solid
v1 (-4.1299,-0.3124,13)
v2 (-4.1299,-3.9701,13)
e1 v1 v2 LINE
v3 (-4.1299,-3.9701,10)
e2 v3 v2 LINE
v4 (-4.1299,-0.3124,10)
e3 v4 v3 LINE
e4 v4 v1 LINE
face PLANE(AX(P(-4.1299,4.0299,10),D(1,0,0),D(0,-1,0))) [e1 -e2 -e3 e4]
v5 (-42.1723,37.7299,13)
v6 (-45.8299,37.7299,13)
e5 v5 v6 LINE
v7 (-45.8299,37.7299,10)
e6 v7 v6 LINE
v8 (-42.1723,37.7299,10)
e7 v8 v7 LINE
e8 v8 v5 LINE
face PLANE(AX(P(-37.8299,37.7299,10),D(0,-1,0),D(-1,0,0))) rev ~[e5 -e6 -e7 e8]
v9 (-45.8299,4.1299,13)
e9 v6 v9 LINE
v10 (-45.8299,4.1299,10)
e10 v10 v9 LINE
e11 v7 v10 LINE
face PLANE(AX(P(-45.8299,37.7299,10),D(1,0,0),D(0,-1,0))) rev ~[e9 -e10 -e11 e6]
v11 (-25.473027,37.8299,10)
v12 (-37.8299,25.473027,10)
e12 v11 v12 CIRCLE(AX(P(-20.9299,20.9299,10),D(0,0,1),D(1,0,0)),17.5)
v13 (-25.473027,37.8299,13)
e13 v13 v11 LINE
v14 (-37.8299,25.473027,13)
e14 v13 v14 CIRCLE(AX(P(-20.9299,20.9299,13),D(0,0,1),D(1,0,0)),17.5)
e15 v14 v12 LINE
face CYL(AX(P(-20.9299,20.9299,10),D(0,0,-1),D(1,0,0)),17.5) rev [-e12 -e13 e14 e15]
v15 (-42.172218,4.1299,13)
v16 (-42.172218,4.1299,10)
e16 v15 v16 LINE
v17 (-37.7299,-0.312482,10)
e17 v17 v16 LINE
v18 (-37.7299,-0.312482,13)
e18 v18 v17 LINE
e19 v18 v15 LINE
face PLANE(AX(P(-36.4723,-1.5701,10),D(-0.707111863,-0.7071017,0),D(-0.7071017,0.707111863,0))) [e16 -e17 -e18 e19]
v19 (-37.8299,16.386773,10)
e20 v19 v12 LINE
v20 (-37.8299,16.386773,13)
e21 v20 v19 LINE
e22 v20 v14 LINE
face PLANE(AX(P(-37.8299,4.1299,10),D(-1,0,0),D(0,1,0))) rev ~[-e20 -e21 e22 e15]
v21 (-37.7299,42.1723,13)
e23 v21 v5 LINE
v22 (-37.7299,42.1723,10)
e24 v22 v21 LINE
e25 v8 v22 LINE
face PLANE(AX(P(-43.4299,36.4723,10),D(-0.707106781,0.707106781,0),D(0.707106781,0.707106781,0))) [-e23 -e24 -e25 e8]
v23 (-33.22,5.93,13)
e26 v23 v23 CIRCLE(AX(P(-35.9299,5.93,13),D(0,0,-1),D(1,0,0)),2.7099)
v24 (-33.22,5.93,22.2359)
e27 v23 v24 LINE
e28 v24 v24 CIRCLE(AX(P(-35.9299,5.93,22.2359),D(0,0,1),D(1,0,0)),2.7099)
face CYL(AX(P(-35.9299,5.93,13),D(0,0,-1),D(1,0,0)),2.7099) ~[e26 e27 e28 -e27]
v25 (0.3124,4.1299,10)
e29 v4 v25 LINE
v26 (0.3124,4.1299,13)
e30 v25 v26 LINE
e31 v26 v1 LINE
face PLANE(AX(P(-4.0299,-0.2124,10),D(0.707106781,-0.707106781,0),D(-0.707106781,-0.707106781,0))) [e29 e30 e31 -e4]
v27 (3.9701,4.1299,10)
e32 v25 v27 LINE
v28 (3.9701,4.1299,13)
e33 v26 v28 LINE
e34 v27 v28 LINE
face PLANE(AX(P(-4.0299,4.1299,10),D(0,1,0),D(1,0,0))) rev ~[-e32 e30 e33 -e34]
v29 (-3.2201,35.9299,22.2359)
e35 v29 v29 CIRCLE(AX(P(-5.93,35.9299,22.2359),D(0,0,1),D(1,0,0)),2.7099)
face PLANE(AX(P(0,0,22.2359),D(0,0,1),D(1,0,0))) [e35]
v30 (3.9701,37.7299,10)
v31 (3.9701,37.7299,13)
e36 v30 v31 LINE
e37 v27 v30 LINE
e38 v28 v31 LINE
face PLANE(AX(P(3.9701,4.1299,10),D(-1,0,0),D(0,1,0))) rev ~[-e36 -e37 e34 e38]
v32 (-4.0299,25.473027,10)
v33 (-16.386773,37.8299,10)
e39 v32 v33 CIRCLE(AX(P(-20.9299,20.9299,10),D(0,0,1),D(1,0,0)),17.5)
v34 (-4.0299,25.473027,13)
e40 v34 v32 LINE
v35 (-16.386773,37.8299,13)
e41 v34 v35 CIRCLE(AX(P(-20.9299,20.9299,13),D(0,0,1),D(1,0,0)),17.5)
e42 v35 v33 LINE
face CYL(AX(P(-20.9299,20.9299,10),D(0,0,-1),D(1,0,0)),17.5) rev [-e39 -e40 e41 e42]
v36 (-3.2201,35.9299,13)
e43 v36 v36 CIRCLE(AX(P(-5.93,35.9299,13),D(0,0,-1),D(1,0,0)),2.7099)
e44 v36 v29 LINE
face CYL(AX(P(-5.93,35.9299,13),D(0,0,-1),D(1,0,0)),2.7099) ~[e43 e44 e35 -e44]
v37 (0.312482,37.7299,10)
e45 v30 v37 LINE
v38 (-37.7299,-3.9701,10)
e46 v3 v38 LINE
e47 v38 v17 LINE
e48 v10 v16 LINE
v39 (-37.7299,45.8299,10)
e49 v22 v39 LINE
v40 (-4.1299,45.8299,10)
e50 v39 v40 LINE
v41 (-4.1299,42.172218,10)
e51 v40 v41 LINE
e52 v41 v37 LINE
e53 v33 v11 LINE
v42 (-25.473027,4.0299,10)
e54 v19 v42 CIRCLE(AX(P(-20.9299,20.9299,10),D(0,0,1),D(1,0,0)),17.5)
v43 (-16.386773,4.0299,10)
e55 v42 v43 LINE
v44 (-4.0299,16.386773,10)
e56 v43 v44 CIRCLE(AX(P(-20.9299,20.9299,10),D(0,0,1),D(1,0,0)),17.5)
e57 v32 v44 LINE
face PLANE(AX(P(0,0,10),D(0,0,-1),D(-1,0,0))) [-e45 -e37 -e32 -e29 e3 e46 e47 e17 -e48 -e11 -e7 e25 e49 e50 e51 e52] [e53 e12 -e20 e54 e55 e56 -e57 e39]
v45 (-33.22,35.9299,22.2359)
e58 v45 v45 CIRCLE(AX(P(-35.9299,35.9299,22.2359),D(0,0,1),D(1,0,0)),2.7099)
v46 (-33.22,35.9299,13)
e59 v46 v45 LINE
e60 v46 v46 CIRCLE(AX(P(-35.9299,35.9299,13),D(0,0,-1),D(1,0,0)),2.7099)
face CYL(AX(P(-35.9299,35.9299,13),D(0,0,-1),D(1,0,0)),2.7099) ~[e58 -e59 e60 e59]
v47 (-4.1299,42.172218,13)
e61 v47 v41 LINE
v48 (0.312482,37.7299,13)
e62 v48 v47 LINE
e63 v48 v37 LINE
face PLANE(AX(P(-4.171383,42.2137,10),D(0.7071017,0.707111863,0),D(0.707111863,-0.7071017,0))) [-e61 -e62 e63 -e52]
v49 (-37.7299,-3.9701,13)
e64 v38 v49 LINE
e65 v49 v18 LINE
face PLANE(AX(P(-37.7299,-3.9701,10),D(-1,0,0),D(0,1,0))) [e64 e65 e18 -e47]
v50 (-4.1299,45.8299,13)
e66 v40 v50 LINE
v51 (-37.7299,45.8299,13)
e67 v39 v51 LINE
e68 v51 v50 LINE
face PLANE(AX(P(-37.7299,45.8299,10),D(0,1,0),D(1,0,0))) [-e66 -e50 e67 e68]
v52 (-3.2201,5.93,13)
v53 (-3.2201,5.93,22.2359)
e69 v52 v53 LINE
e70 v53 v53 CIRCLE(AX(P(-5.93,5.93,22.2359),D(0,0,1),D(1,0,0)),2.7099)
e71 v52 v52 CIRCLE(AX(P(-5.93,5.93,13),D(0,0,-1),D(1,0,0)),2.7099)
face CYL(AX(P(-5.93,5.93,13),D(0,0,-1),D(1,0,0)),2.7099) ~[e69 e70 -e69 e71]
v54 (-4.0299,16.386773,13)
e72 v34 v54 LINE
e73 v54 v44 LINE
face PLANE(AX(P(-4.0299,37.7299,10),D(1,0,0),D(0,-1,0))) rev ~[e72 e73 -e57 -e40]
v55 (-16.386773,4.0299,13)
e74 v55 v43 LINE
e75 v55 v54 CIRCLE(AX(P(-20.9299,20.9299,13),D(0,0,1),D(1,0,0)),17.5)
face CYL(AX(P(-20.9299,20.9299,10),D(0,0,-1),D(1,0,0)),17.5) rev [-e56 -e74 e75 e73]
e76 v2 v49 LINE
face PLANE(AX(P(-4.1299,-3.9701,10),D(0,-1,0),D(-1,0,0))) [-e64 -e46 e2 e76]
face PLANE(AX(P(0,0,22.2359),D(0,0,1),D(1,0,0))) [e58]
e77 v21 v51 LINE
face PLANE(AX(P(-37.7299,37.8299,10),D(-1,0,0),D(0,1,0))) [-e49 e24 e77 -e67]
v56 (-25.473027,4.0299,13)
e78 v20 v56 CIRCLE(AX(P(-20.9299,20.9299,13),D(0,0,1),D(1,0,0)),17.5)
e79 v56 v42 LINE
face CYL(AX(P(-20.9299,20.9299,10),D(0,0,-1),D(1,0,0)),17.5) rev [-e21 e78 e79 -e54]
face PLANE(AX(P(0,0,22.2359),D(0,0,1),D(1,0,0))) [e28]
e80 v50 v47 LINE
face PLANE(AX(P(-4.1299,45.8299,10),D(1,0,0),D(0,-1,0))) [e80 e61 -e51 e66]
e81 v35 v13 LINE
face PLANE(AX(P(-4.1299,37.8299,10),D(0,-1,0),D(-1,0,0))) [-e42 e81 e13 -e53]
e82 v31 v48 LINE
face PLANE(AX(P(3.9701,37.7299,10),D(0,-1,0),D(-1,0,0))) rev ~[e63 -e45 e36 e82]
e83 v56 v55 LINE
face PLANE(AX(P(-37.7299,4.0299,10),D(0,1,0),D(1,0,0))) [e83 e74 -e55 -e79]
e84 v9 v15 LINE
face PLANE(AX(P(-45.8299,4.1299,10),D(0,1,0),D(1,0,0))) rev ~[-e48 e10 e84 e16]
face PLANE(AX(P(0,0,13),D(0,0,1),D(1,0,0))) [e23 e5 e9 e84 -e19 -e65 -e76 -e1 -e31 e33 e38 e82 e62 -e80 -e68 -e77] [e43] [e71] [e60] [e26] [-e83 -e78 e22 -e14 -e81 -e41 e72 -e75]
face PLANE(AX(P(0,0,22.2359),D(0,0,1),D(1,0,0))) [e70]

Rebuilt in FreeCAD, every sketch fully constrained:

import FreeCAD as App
import Part
import Sketcher


def add_polygon(sketch, points):
    """Adds a closed chain of lines whose ends are joined by coincident constraints."""
    first, n = sketch.GeometryCount, len(points)
    for a, b in zip(points, points[1:] + points[:1]):
        sketch.addGeometry(Part.LineSegment(App.Vector(*a, 0), App.Vector(*b, 0)), False)
    for i in range(n):
        sketch.addConstraint(Sketcher.Constraint("Coincident", first + i, 2, first + (i + 1) % n, 1))

doc = App.newDocument("Part")
body = doc.addObject("PartDesign::Body", "Body")

# Sketch on XY plane
sketch1 = body.newObject("Sketcher::SketchObject", "Sketch")
sketch1.AttachmentSupport = (doc.getObject("XY_Plane"), [""])
sketch1.MapMode = "FlatFace"
sketch1.AttachmentOffset = App.Placement(App.Vector(0, 0, 10), App.Rotation())
add_polygon(sketch1, [(-5.3876, -1.5701), (1.5701, 5.3876), (1.5701, 36.4723), (-5.3876, 43.4299), (-36.4723, 43.4299), (-43.4299, 36.4723), (-43.4299, 5.3876), (-36.4723, -1.5701)])  # lines 0-7
sketch1.addGeometry(Part.Circle(App.Vector(-20.9299, 20.9299, 0), App.Vector(0, 0, 1), 17.5), False)  # 8
sketch1.addConstraint([
    Sketcher.Constraint("Vertical", 1),
    Sketcher.Constraint("Horizontal", 3),
    Sketcher.Constraint("Vertical", 5),
    Sketcher.Constraint("Horizontal", 7),
    Sketcher.Constraint("Perpendicular", 0, 2),
    Sketcher.Constraint("Perpendicular", 2, 4),
    Sketcher.Constraint("Perpendicular", 4, 6),
    Sketcher.Constraint("Horizontal", 1, 2, 4, 2),
    Sketcher.Constraint("Horizontal", 0, 2, 5, 2),
    Sketcher.Constraint("Vertical", 3, 2, 6, 2),
    Sketcher.Constraint("Vertical", 2, 2, 7, 2),
    Sketcher.Constraint("Equal", 7, 1),
    Sketcher.Constraint("Diameter", 8, 35.0),
    Sketcher.Constraint("DistanceX", 4, 2, 1, 2, 45.0),
    Sketcher.Constraint("DistanceX", 8, 3, 0, 2, 22.5),
    Sketcher.Constraint("DistanceY", 8, 3, 2, 2, 22.5),
    Sketcher.Constraint("DistanceX", 8, 3, -1, 1, 20.93),
    Sketcher.Constraint("DistanceY", -1, 1, 8, 3, 20.93),
    Sketcher.Constraint("DistanceX", 3, 2, 3, 1, 31.0847),
])
pad1 = body.newObject("PartDesign::Pad", "Pad")
pad1.Profile = sketch1
pad1.Length = 3

# Sketch on XY plane
sketch2 = body.newObject("Sketcher::SketchObject", "Sketch001")
sketch2.AttachmentSupport = (doc.getObject("XY_Plane"), [""])
sketch2.MapMode = "FlatFace"
sketch2.AttachmentOffset = App.Placement(App.Vector(0, 0, 13), App.Rotation())
sketch2.addGeometry([
    Part.Circle(App.Vector(-35.9299, 35.9299, 0), App.Vector(0, 0, 1), 2.7099),
    Part.Circle(App.Vector(-5.93, 35.9299, 0), App.Vector(0, 0, 1), 2.7099),
    Part.Circle(App.Vector(-5.93, 5.93, 0), App.Vector(0, 0, 1), 2.7099),
    Part.Circle(App.Vector(-35.9299, 5.93, 0), App.Vector(0, 0, 1), 2.7099),
], False)
sketch2.addConstraint([
    Sketcher.Constraint("Equal", 0, 1),
    Sketcher.Constraint("Equal", 1, 2),
    Sketcher.Constraint("Equal", 2, 3),
    Sketcher.Constraint("Horizontal", 0, 3, 1, 3),
    Sketcher.Constraint("Horizontal", 2, 3, 3, 3),
    Sketcher.Constraint("Vertical", 1, 3, 2, 3),
    Sketcher.Constraint("Vertical", 0, 3, 3, 3),
    Sketcher.Constraint("DistanceX", 0, 3, 1, 3, 30.0),
    Sketcher.Constraint("DistanceY", 2, 3, 1, 3, 30.0),
    Sketcher.Constraint("Diameter", 0, 5.4198),
    Sketcher.Constraint("DistanceX", 0, 3, -1, 1, 35.93),
    Sketcher.Constraint("DistanceY", -1, 1, 0, 3, 35.93),
])
pad2 = body.newObject("PartDesign::Pad", "Pad001")
pad2.Profile = sketch2
pad2.Length = 9.2359

# Sketch on XY plane
sketch3 = body.newObject("Sketcher::SketchObject", "Sketch002")
sketch3.AttachmentSupport = (doc.getObject("XY_Plane"), [""])
sketch3.MapMode = "FlatFace"
sketch3.AttachmentOffset = App.Placement(App.Vector(0, 0, 10), App.Rotation())
add_polygon(sketch3, [(-45.8299, 37.7299), (-37.8299, 37.7299), (-37.8299, 4.1299), (-45.8299, 4.1299)])  # lines 0-3
add_polygon(sketch3, [(-37.7299, -3.9701), (-37.7299, 4.0299), (-4.1299, 4.0299), (-4.1299, -3.9701)])  # lines 4-7
add_polygon(sketch3, [(3.9701, 4.1299), (-4.0299, 4.1299), (-4.0299, 37.7299), (3.9701, 37.7299)])  # lines 8-11
add_polygon(sketch3, [(-4.1299, 45.8299), (-4.1299, 37.8299), (-37.7299, 37.8299), (-37.7299, 45.8299)])  # lines 12-15
sketch3.addConstraint([
    Sketcher.Constraint("Horizontal", 0),
    Sketcher.Constraint("Vertical", 1),
    Sketcher.Constraint("Horizontal", 2),
    Sketcher.Constraint("Vertical", 3),
    Sketcher.Constraint("Vertical", 4),
    Sketcher.Constraint("Horizontal", 5),
    Sketcher.Constraint("Vertical", 6),
    Sketcher.Constraint("Horizontal", 7),
    Sketcher.Constraint("Horizontal", 8),
    Sketcher.Constraint("Vertical", 9),
    Sketcher.Constraint("Horizontal", 10),
    Sketcher.Constraint("Vertical", 11),
    Sketcher.Constraint("Vertical", 12),
    Sketcher.Constraint("Horizontal", 13),
    Sketcher.Constraint("Vertical", 14),
    Sketcher.Constraint("Horizontal", 15),
    Sketcher.Constraint("Horizontal", 2, 2, 8, 2),
    Sketcher.Constraint("Horizontal", 3, 2, 9, 2),
    Sketcher.Constraint("Vertical", 6, 2, 12, 2),
    Sketcher.Constraint("Vertical", 7, 2, 13, 2),
    Sketcher.Constraint("Equal", 2, 8),
    Sketcher.Constraint("Equal", 15, 1),
    Sketcher.Constraint("Equal", 10, 4),
    Sketcher.Constraint("Equal", 6, 12),
    Sketcher.Constraint("DistanceX", 1, 2, 4, 2, 0.1),
    Sketcher.Constraint("DistanceY", 4, 2, 1, 2, 0.1),
    Sketcher.Constraint("DistanceX", 5, 2, 8, 2, 0.1),
    Sketcher.Constraint("DistanceY", 9, 2, 12, 2, 0.1),
    Sketcher.Constraint("DistanceX", 0, 1, 0, 2, 8.0),
    Sketcher.Constraint("DistanceX", 5, 1, 5, 2, 33.6),
    Sketcher.Constraint("DistanceX", 0, 2, -1, 1, 37.83),
    Sketcher.Constraint("DistanceY", -1, 1, 0, 2, 37.73),
])
pad3 = body.newObject("PartDesign::Pad", "Pad002")
pad3.Profile = sketch3
pad3.Length = 3

doc.recompute()
